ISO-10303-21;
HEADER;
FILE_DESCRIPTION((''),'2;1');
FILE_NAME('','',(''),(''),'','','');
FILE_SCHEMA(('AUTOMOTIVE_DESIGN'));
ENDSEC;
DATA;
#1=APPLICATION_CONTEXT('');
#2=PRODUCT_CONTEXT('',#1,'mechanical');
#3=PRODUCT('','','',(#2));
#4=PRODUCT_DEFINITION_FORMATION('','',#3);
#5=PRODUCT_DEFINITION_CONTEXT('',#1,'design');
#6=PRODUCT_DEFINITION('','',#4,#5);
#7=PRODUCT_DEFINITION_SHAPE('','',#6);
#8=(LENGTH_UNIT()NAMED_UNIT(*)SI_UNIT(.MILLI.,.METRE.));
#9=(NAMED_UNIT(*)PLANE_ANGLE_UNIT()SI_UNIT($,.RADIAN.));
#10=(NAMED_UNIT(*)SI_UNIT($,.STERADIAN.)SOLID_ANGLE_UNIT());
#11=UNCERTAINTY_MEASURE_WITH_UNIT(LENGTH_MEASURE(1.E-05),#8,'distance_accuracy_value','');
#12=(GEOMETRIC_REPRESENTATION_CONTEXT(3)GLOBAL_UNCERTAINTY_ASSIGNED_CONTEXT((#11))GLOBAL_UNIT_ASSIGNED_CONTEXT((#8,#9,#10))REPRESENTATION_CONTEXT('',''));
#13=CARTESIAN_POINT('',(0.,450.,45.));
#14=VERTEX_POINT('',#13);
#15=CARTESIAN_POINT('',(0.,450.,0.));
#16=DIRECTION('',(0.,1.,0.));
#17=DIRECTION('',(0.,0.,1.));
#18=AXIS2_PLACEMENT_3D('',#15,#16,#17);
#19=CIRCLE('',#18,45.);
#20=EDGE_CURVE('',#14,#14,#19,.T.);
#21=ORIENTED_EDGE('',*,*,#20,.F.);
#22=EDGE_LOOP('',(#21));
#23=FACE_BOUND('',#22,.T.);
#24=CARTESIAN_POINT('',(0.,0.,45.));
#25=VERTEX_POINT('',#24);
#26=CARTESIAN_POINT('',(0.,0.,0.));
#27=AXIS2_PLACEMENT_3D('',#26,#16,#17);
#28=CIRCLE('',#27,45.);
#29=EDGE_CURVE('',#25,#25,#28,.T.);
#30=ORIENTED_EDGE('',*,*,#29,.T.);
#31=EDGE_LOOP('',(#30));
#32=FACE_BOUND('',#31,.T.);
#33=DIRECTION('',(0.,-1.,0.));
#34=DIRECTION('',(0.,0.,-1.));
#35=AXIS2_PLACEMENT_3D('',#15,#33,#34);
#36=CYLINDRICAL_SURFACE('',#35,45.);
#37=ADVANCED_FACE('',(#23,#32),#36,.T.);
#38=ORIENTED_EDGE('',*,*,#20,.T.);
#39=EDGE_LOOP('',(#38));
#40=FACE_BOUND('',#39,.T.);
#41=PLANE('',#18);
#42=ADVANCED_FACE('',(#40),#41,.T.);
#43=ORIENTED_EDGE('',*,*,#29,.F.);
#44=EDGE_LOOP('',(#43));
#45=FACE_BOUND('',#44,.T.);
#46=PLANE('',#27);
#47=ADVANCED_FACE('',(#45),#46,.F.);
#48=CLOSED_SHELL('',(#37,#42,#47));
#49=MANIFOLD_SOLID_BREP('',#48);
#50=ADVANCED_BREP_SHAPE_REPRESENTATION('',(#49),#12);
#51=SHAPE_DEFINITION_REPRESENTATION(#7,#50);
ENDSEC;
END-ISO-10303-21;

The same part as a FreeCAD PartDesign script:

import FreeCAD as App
import Part
import Sketcher
from FreeCAD import Vector
Q = App.Units.Quantity

doc = App.newDocument("Part")
body = doc.addObject("PartDesign::Body", "Body")

# Sketch on XZ plane
sketch1 = body.newObject("Sketcher::SketchObject", "Sketch")
sketch1.AttachmentSupport = (doc.getObject("XZ_Plane"), [""])
sketch1.MapMode = "FlatFace"
sketch1.addGeometry(Part.Circle(Vector(0, 0, 0), Vector(0, 0, 1), 45), False)
sketch1.addConstraint([
    Sketcher.Constraint("Coincident", 0, 3, -1, 1),
    Sketcher.Constraint("Diameter", 0, Q("90 mm")),
])
pad1 = body.newObject("PartDesign::Pad", "Pad")
pad1.Profile = sketch1
pad1.Length = 450
pad1.Reversed = True

doc.recompute()
